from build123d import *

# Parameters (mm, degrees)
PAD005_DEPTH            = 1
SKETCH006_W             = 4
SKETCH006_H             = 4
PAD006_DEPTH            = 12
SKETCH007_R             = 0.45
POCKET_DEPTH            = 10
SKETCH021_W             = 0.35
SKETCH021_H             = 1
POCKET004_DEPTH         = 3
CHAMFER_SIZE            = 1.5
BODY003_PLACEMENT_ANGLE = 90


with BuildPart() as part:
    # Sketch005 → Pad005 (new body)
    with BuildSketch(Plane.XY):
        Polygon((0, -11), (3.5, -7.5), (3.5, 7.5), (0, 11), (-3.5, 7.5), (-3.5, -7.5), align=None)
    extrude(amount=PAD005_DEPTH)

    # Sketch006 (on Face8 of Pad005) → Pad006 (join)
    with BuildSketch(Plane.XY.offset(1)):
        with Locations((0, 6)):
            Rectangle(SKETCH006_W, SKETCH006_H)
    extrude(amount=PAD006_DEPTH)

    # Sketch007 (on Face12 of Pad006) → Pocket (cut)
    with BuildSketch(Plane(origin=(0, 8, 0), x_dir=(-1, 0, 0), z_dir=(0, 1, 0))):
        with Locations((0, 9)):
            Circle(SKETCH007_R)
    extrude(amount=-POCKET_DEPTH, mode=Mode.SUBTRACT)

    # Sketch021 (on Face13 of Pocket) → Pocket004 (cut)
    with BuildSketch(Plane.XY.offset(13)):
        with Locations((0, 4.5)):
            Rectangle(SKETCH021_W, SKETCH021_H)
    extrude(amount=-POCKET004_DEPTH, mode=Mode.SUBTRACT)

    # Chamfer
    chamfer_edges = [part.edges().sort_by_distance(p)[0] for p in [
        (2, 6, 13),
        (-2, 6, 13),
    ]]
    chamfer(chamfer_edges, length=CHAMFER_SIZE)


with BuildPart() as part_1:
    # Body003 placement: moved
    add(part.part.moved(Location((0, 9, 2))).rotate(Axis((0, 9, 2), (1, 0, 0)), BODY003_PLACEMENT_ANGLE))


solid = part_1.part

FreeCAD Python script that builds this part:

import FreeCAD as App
import Part
import Sketcher

V = App.Vector
Q = App.Units.Quantity


def edges_at(feature, points):
    """Names of the edges that pass closest to the given points."""
    edges = feature.Shape.Edges
    near = lambda p: min(range(len(edges)), key=lambda i: edges[i].distToShape(Part.Vertex(*p))[0])
    return sorted({f"Edge{near(p) + 1}" for p in points})

doc = App.newDocument("Part")
body = doc.addObject("PartDesign::Body", "Body")

# Sketch on XY plane
sketch1 = body.newObject("Sketcher::SketchObject", "Sketch")
sketch1.AttachmentSupport = (doc.getObject("XY_Plane"), [""])
sketch1.MapMode = "FlatFace"
sketch1.addGeometry([
    Part.LineSegment(V(0, -11, 0), V(3.5, -7.5, 0)),  # 0
    Part.LineSegment(V(3.5, -7.5, 0), V(3.5, 7.5, 0)),  # 1
    Part.LineSegment(V(3.5, 7.5, 0), V(0, 11, 0)),  # 2
    Part.LineSegment(V(0, 11, 0), V(-3.5, 7.5, 0)),  # 3
    Part.LineSegment(V(-3.5, 7.5, 0), V(-3.5, -7.5, 0)),  # 4
    Part.LineSegment(V(-3.5, -7.5, 0), V(0, -11, 0)),  # 5
], False)
sketch1.addConstraint([
    Sketcher.Constraint("Coincident", 0, 2, 1, 1),
    Sketcher.Constraint("Coincident", 1, 2, 2, 1),
    Sketcher.Constraint("Coincident", 2, 2, 3, 1),
    Sketcher.Constraint("Coincident", 3, 2, 4, 1),
    Sketcher.Constraint("Coincident", 4, 2, 5, 1),
    Sketcher.Constraint("Coincident", 5, 2, 0, 1),
    Sketcher.Constraint("Vertical", 1),
    Sketcher.Constraint("Vertical", 4),
    Sketcher.Constraint("Symmetric", 0, 2, 3, 2, -1, 1),
    Sketcher.Constraint("Symmetric", 2, 2, 5, 2, -1, 1),
    Sketcher.Constraint("PointOnObject", 2, 2, -2),
    Sketcher.Constraint("Perpendicular", 0, 2),
    Sketcher.Constraint("Perpendicular", 3, 5),
    Sketcher.Constraint("Horizontal", 1, 2, 3, 2),
    Sketcher.Constraint("DistanceY", 1, 1, 1, 2, Q("15 mm")),
    Sketcher.Constraint("DistanceY", -1, 1, 2, 2, Q("11 mm")),
])
pad1 = body.newObject("PartDesign::Pad", "Pad")
pad1.Profile = sketch1
pad1.Length = 1

# Sketch on XY plane
sketch2 = body.newObject("Sketcher::SketchObject", "Sketch001")
sketch2.AttachmentSupport = (doc.getObject("XY_Plane"), [""])
sketch2.MapMode = "FlatFace"
sketch2.AttachmentOffset = App.Placement(V(0, 0, 1), App.Rotation())
sketch2.addGeometry([
    Part.LineSegment(V(-2, 8, 0), V(-2, 4, 0)),
    Part.LineSegment(V(-2, 4, 0), V(2, 4, 0)),
    Part.LineSegment(V(2, 4, 0), V(2, 8, 0)),
    Part.LineSegment(V(2, 8, 0), V(-2, 8, 0)),
], False)
sketch2.addConstraint([
    Sketcher.Constraint("Coincident", 0, 2, 1, 1),
    Sketcher.Constraint("Coincident", 1, 2, 2, 1),
    Sketcher.Constraint("Coincident", 2, 2, 3, 1),
    Sketcher.Constraint("Coincident", 3, 2, 0, 1),
    Sketcher.Constraint("Vertical", 0),
    Sketcher.Constraint("Horizontal", 1),
    Sketcher.Constraint("Vertical", 2),
    Sketcher.Constraint("Horizontal", 3),
    Sketcher.Constraint("Equal", 3, 0),
    Sketcher.Constraint("DistanceX", 1, 1, 1, 2, Q("4 mm")),
    Sketcher.Constraint("DistanceX", 0, 2, -1, 1, Q("2 mm")),
    Sketcher.Constraint("DistanceY", -1, 1, 0, 2, Q("4 mm")),
])
pad2 = body.newObject("PartDesign::Pad", "Pad001")
pad2.Profile = sketch2
pad2.Length = 12

# Sketch on XZ plane
sketch3 = body.newObject("Sketcher::SketchObject", "Sketch002")
sketch3.AttachmentSupport = (doc.getObject("XZ_Plane"), [""])
sketch3.MapMode = "FlatFace"
sketch3.AttachmentOffset = App.Placement(V(0, 0, -8), App.Rotation())
sketch3.addGeometry(Part.Circle(V(0, 9, 0), V(0, 0, 1), 0.45), False)
sketch3.addConstraint([
    Sketcher.Constraint("PointOnObject", 0, 3, -2),
    Sketcher.Constraint("Diameter", 0, Q("0.9 mm")),
    Sketcher.Constraint("DistanceY", -1, 1, 0, 3, Q("9 mm")),
])
pocket1 = body.newObject("PartDesign::Pocket", "Pocket")
pocket1.Profile = sketch3
pocket1.Length = 10
pocket1.Reversed = True

# Sketch on XY plane
sketch4 = body.newObject("Sketcher::SketchObject", "Sketch003")
sketch4.AttachmentSupport = (doc.getObject("XY_Plane"), [""])
sketch4.MapMode = "FlatFace"
sketch4.AttachmentOffset = App.Placement(V(0, 0, 13), App.Rotation())
sketch4.addGeometry([
    Part.LineSegment(V(-0.17, 5, 0), V(-0.17, 4, 0)),
    Part.LineSegment(V(-0.17, 4, 0), V(0.17, 4, 0)),
    Part.LineSegment(V(0.17, 4, 0), V(0.17, 5, 0)),
    Part.LineSegment(V(0.17, 5, 0), V(-0.17, 5, 0)),
], False)
sketch4.addConstraint([
    Sketcher.Constraint("Coincident", 0, 2, 1, 1),
    Sketcher.Constraint("Coincident", 1, 2, 2, 1),
    Sketcher.Constraint("Coincident", 2, 2, 3, 1),
    Sketcher.Constraint("Coincident", 3, 2, 0, 1),
    Sketcher.Constraint("Vertical", 0),
    Sketcher.Constraint("Horizontal", 1),
    Sketcher.Constraint("Vertical", 2),
    Sketcher.Constraint("Horizontal", 3),
    Sketcher.Constraint("DistanceY", 0, 2, 0, 1, Q("1 mm")),
    Sketcher.Constraint("DistanceY", -1, 1, 0, 2, Q("4 mm")),
    Sketcher.Constraint("DistanceX", 1, 1, 1, 2, Q("0.35 mm")),
    Sketcher.Constraint("DistanceX", 0, 2, -1, 1, Q("0.175 mm")),
])
pocket2 = body.newObject("PartDesign::Pocket", "Pocket001")
pocket2.Profile = sketch4
pocket2.Length = 3
doc.recompute()

chamfer = body.newObject("PartDesign::Chamfer", "Chamfer")
chamfer.Base = (pocket2, edges_at(pocket2, [(2, 6, 13), (-2, 6, 13)]))
chamfer.Size = 1.5
body2 = doc.addObject("PartDesign::Body", "Body001")
doc.recompute()

body.Placement = App.Placement(V(0, 9, 2), App.Rotation(V(1, 0, 0), 90))
boolean = body2.newObject("PartDesign::Boolean", "Boolean")
boolean.Type = "Fuse"
boolean.addObjects([body])

doc.recompute()
